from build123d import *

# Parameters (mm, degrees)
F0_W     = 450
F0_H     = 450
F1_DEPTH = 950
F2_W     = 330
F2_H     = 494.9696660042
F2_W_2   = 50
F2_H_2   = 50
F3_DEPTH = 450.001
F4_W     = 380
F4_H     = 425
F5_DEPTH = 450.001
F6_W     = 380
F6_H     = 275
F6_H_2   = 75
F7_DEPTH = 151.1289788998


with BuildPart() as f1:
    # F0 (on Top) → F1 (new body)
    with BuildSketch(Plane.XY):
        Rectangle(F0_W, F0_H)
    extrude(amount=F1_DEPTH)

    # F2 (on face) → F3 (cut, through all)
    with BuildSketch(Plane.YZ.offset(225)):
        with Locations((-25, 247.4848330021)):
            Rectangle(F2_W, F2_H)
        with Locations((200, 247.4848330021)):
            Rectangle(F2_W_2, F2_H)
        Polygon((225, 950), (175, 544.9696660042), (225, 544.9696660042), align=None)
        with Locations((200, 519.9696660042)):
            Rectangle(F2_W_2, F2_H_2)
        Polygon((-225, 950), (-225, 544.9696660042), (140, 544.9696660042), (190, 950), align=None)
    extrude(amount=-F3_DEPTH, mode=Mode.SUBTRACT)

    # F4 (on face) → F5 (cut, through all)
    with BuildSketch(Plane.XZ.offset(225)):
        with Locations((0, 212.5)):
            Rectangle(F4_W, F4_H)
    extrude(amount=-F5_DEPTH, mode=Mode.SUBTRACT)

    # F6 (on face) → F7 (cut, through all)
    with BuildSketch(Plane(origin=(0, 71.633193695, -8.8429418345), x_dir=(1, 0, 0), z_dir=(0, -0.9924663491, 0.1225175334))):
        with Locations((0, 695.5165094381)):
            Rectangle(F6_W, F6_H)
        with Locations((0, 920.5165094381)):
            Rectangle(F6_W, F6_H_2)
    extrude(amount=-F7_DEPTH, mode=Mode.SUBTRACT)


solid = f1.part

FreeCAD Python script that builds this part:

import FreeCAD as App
import Part
import Sketcher
from FreeCAD import Vector
Q = App.Units.Quantity


def add_polygon(sketch, points):
    """Adds a closed chain of lines whose ends are joined by coincident constraints."""
    first, n = sketch.GeometryCount, len(points)
    for a, b in zip(points, points[1:] + points[:1]):
        sketch.addGeometry(Part.LineSegment(App.Vector(*a, 0), App.Vector(*b, 0)), False)
    for i in range(n):
        sketch.addConstraint(Sketcher.Constraint("Coincident", first + i, 2, first + (i + 1) % n, 1))

doc = App.newDocument("Part")
body = doc.addObject("PartDesign::Body", "Body")

# Sketch on XY plane
sketch1 = body.newObject("Sketcher::SketchObject", "Sketch")
sketch1.AttachmentSupport = (doc.getObject("XY_Plane"), [""])
sketch1.MapMode = "FlatFace"
add_polygon(sketch1, [(-225, 225), (-225, -225), (225, -225), (225, 225)])  # lines 0-3
sketch1.addConstraint([
    Sketcher.Constraint("Vertical", 0),
    Sketcher.Constraint("Horizontal", 1),
    Sketcher.Constraint("Vertical", 2),
    Sketcher.Constraint("Horizontal", 3),
    Sketcher.Constraint("Symmetric", 0, 2, 2, 2, -1, 1),
    Sketcher.Constraint("Equal", 3, 0),
    Sketcher.Constraint("DistanceX", 1, 1, 1, 2, Q("450 mm")),
])
pad1 = body.newObject("PartDesign::Pad", "Pad")
pad1.Profile = sketch1
pad1.Length = 950

# Sketch on YZ plane
sketch2 = body.newObject("Sketcher::SketchObject", "Sketch001")
sketch2.AttachmentSupport = (doc.getObject("YZ_Plane"), [""])
sketch2.MapMode = "FlatFace"
sketch2.AttachmentOffset = App.Placement(Vector(0, 0, 225), App.Rotation())
add_polygon(sketch2, [(-190, 495), (-190, 0), (140, 0), (140, 495)])  # lines 0-3
add_polygon(sketch2, [(175, 0), (225, 0), (225, 950), (175, 545)])  # lines 4-7
add_polygon(sketch2, [(-225, 950), (-225, 545), (140, 545), (190, 950)])  # lines 8-11
sketch2.addConstraint([
    Sketcher.Constraint("Vertical", 0),
    Sketcher.Constraint("Horizontal", 1),
    Sketcher.Constraint("Vertical", 2),
    Sketcher.Constraint("Horizontal", 3),
    Sketcher.Constraint("Horizontal", 4),
    Sketcher.Constraint("Vertical", 5),
    Sketcher.Constraint("Vertical", 7),
    Sketcher.Constraint("Vertical", 8),
    Sketcher.Constraint("Horizontal", 9),
    Sketcher.Constraint("Horizontal", 11),
    Sketcher.Constraint("Symmetric", 5, 2, 11, 2, -2),
    Sketcher.Constraint("PointOnObject", 0, 2, -1),
    Sketcher.Constraint("PointOnObject", 4, 2, -1),
    Sketcher.Constraint("Parallel", 6, 10),
    Sketcher.Constraint("Horizontal", 6, 2, 8, 2),
    Sketcher.Constraint("Vertical", 2, 2, 9, 2),
    Sketcher.Constraint("DistanceX", 1, 1, 1, 2, Q("330 mm")),
    Sketcher.Constraint("DistanceX", 4, 1, 4, 2, Q("50 mm")),
    Sketcher.Constraint("DistanceX", 9, 1, 9, 2, Q("365 mm")),
    Sketcher.Constraint("DistanceY", 5, 1, 5, 2, Q("950 mm")),
    Sketcher.Constraint("DistanceX", 0, 2, -1, 1, Q("190 mm")),
    Sketcher.Constraint("DistanceY", 2, 2, 6, 2, Q("50 mm")),
    Sketcher.Constraint("DistanceY", 0, 2, 0, 1, Q("494.969666 mm")),
])
pocket1 = body.newObject("PartDesign::Pocket", "Pocket")
pocket1.Profile = sketch2
pocket1.Type = "ThroughAll"

# Sketch on XZ plane
sketch3 = body.newObject("Sketcher::SketchObject", "Sketch002")
sketch3.AttachmentSupport = (doc.getObject("XZ_Plane"), [""])
sketch3.MapMode = "FlatFace"
sketch3.AttachmentOffset = App.Placement(Vector(0, 0, 225), App.Rotation())
add_polygon(sketch3, [(-190, 425), (-190, 0), (190, 0), (190, 425)])  # lines 0-3
sketch3.addConstraint([
    Sketcher.Constraint("Vertical", 0),
    Sketcher.Constraint("Horizontal", 1),
    Sketcher.Constraint("Vertical", 2),
    Sketcher.Constraint("Horizontal", 3),
    Sketcher.Constraint("Symmetric", 0, 2, 1, 2, -1, 1),
    Sketcher.Constraint("DistanceX", 1, 1, 1, 2, Q("380 mm")),
    Sketcher.Constraint("DistanceY", 0, 2, 0, 1, Q("425 mm")),
])
pocket2 = body.newObject("PartDesign::Pocket", "Pocket001")
pocket2.Profile = sketch3
pocket2.Type = "ThroughAll"

# Sketch on an angled plane
sketch4 = body.newObject("Sketcher::SketchObject", "Sketch003")
sketch4.Placement = App.Placement(Vector(0, 71.633194, -8.842942), App.Rotation(Vector(1, 0, 0), Vector(0, 0.122517533, 0.992466349), Vector(0, -0.992466349, 0.122517533), "ZXY"))
add_polygon(sketch4, [(-190, 833), (-190, 558), (190, 558), (190, 833)])  # lines 0-3
add_polygon(sketch4, [(-190, 958), (-190, 883), (190, 883), (190, 958)])  # lines 4-7
sketch4.addConstraint([
    Sketcher.Constraint("Vertical", 0),
    Sketcher.Constraint("Horizontal", 1),
    Sketcher.Constraint("Vertical", 2),
    Sketcher.Constraint("Horizontal", 3),
    Sketcher.Constraint("Vertical", 4),
    Sketcher.Constraint("Horizontal", 5),
    Sketcher.Constraint("Vertical", 6),
    Sketcher.Constraint("Horizontal", 7),
    Sketcher.Constraint("Vertical", 3, 2, 4, 2),
    Sketcher.Constraint("Vertical", 2, 2, 5, 2),
    Sketcher.Constraint("DistanceX", 1, 1, 1, 2, Q("380 mm")),
    Sketcher.Constraint("DistanceY", 0, 2, 0, 1, Q("275 mm")),
    Sketcher.Constraint("DistanceY", 4, 2, 4, 1, Q("75 mm")),
    Sketcher.Constraint("DistanceX", 0, 2, -1, 1, Q("190 mm")),
    Sketcher.Constraint("DistanceY", 3, 2, 4, 2, Q("50 mm")),
    Sketcher.Constraint("DistanceY", -1, 1, 0, 2, Q("558.016509 mm")),
])
pocket3 = body.newObject("PartDesign::Pocket", "Pocket002")
pocket3.Profile = sketch4
pocket3.Type = "ThroughAll"

doc.recompute()
